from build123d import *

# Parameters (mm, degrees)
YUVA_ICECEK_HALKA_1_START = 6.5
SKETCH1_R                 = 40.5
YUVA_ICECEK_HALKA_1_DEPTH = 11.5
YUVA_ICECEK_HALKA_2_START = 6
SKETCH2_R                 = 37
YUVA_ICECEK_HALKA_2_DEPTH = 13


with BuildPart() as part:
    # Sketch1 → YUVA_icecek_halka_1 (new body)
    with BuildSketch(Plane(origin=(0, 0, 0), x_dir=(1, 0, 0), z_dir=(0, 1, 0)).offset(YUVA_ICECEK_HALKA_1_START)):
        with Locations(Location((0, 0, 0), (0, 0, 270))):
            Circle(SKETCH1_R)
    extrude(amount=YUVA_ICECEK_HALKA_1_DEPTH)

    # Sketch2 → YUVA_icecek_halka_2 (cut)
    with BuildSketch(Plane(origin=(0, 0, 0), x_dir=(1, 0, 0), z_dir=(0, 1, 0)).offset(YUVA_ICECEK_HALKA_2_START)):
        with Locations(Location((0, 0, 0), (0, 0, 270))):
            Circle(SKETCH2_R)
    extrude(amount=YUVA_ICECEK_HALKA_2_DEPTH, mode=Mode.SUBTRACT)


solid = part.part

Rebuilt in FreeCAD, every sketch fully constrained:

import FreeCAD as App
import Part
import Sketcher

doc = App.newDocument("Part")
params = doc.addObject("Spreadsheet::Sheet", "Params")
for row, (alias, value) in enumerate([
    ("sketch1_diameter", "81 mm"),
    ("pad1_length", "11.5 mm"),
    ("sketch2_diameter", "74 mm"),
    ("pocket1_length", "13 mm"),
], start=1):
    params.set(f"A{row}", alias)
    params.set(f"B{row}", "=" + value)
    params.setAlias(f"B{row}", alias)

body = doc.addObject("PartDesign::Body", "Body")

# Sketch on XZ plane
sketch1 = doc.addObject("Sketcher::SketchObject", "Sketch")
body.addObject(sketch1)
sketch1.AttachmentSupport = (doc.XZ_Plane, [""])
sketch1.MapMode = "FlatFace"
sketch1.AttachmentOffset = App.Placement(App.Vector(0, 0, -6.5), App.Rotation())
sketch1.addGeometry(Part.Circle(App.Vector(0, 0, 0), App.Vector(0, 0, 1), 40), False)
sketch1.addConstraint([
    Sketcher.Constraint("Coincident", 0, 3, -1, 1),
    Sketcher.Constraint("Diameter", 0, 81.0),
])
sketch1.setExpression("Constraints[1]", "Params.sketch1_diameter")
pad1 = doc.addObject("PartDesign::Pad", "Pad")
body.addObject(pad1)
pad1.Profile = sketch1
pad1.setExpression("Length", "Params.pad1_length")
pad1.Reversed = True

# Sketch on XZ plane
sketch2 = doc.addObject("Sketcher::SketchObject", "Sketch001")
body.addObject(sketch2)
sketch2.AttachmentSupport = (doc.XZ_Plane, [""])
sketch2.MapMode = "FlatFace"
sketch2.AttachmentOffset = App.Placement(App.Vector(0, 0, -6), App.Rotation())
sketch2.addGeometry(Part.Circle(App.Vector(0, 0, 0), App.Vector(0, 0, 1), 37), False)
sketch2.addConstraint([
    Sketcher.Constraint("Coincident", 0, 3, -1, 1),
    Sketcher.Constraint("Diameter", 0, 74.0),
])
sketch2.setExpression("Constraints[1]", "Params.sketch2_diameter")
pocket1 = doc.addObject("PartDesign::Pocket", "Pocket")
body.addObject(pocket1)
pocket1.Profile = sketch2
pocket1.setExpression("Length", "Params.pocket1_length")

doc.recompute()
